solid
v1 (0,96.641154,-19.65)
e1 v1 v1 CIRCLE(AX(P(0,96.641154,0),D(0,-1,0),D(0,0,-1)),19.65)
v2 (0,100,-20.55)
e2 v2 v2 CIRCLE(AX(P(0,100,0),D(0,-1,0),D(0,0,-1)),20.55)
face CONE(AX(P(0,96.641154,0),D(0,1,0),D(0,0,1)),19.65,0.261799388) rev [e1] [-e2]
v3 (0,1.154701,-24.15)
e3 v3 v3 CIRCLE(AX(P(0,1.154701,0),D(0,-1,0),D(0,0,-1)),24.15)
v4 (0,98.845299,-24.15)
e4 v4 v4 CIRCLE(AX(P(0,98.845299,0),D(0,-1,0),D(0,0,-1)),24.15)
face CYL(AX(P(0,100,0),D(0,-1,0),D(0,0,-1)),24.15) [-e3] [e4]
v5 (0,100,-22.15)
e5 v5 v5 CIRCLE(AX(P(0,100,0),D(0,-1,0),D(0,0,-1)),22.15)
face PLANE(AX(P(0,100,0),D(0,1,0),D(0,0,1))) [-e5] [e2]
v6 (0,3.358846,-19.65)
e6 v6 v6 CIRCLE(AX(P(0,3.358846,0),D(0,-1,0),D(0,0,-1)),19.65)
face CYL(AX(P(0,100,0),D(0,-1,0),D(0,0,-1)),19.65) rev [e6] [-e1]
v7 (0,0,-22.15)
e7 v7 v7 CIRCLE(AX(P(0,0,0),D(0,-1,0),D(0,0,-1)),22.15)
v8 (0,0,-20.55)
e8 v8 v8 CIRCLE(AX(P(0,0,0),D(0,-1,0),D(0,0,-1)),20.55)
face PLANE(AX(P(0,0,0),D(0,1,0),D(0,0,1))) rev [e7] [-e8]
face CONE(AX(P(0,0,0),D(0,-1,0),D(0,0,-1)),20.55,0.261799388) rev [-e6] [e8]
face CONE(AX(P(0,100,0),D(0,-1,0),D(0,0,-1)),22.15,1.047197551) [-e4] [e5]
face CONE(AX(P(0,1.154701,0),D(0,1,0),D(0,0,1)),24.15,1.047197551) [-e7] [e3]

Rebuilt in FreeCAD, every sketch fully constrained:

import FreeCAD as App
import Part
import Sketcher
from FreeCAD import Vector
Q = App.Units.Quantity

doc = App.newDocument("Part")
body = doc.addObject("PartDesign::Body", "Body")

sketch1 = body.newObject("Sketcher::SketchObject", "Sketch")
sketch1.AttachmentSupport = (doc.getObject("XZ_Plane"), [""])
sketch1.MapMode = "FlatFace"
sketch1.addGeometry(Part.Circle(Vector(0, 0, 0), Vector(0, 0, 1), 24), False)
sketch1.addGeometry(Part.Circle(Vector(0, 0, 0), Vector(0, 0, 1), 20), False)
sketch1.addConstraint(Sketcher.Constraint("Coincident", 0, 3, -1, 1))
sketch1.addConstraint(Sketcher.Constraint("Coincident", 1, 3, -1, 1))
sketch1.addConstraint(Sketcher.Constraint("Diameter", 0, Q("48.3 mm")))
sketch1.addConstraint(Sketcher.Constraint("Diameter", 1, Q("39.3 mm")))
pad1 = body.newObject("PartDesign::Pad", "Pad")
pad1.Profile = sketch1
pad1.Length = 100
pad1.Reversed = True

sketch2 = body.newObject("Sketcher::SketchObject", "Sketch001")
sketch2.AttachmentSupport = (doc.getObject("XY_Plane"), [""])
sketch2.MapMode = "FlatFace"
sketch2.addGeometry(Part.LineSegment(Vector(24.1, 98.8, 0), Vector(24.1, 100, 0)), False)
sketch2.addGeometry(Part.LineSegment(Vector(24.1, 100, 0), Vector(22.1, 100, 0)), False)
sketch2.addGeometry(Part.LineSegment(Vector(22.1, 100, 0), Vector(24.1, 98.8, 0)), False)
sketch2.addGeometry(Part.LineSegment(Vector(20.6, 100, 0), Vector(19.6, 100, 0)), False)
sketch2.addGeometry(Part.LineSegment(Vector(19.6, 100, 0), Vector(19.6, 96.6, 0)), False)
sketch2.addGeometry(Part.LineSegment(Vector(19.6, 96.6, 0), Vector(20.6, 100, 0)), False)
sketch2.addConstraint(Sketcher.Constraint("Coincident", 0, 2, 1, 1))
sketch2.addConstraint(Sketcher.Constraint("Coincident", 1, 2, 2, 1))
sketch2.addConstraint(Sketcher.Constraint("Coincident", 2, 2, 0, 1))
sketch2.addConstraint(Sketcher.Constraint("Coincident", 3, 2, 4, 1))
sketch2.addConstraint(Sketcher.Constraint("Coincident", 4, 2, 5, 1))
sketch2.addConstraint(Sketcher.Constraint("Coincident", 5, 2, 3, 1))
sketch2.addConstraint(Sketcher.Constraint("Vertical", 0))
sketch2.addConstraint(Sketcher.Constraint("Horizontal", 1))
sketch2.addConstraint(Sketcher.Constraint("Horizontal", 3))
sketch2.addConstraint(Sketcher.Constraint("Vertical", 4))
sketch2.addConstraint(Sketcher.Constraint("Horizontal", 1, 2, 3, 2))
sketch2.addConstraint(Sketcher.Constraint("DistanceX", 1, 2, 1, 1, Q("2 mm")))
sketch2.addConstraint(Sketcher.Constraint("Angle", 2, Q("-30 deg")))
sketch2.addConstraint(Sketcher.Constraint("Angle", 5, Q("75 deg")))
sketch2.addConstraint(Sketcher.Constraint("DistanceX", 3, 2, 3, 1, Q("0.9 mm")))
sketch2.addConstraint(Sketcher.Constraint("DistanceY", -1, 1, 0, 2, Q("100 mm")))
sketch2.addConstraint(Sketcher.Constraint("DistanceX", 3, 2, 1, 2, Q("2.5 mm")))
sketch2.addConstraint(Sketcher.Constraint("DistanceX", -1, 1, 0, 2, Q("24.15 mm")))
groove = body.newObject("PartDesign::Groove", "Groove")
groove.Profile = sketch2
groove.ReferenceAxis = (sketch2, ["V_Axis"])
groove.Angle = 360

sketch3 = body.newObject("Sketcher::SketchObject", "Sketch002")
sketch3.AttachmentSupport = (doc.getObject("XY_Plane"), [""])
sketch3.MapMode = "FlatFace"
sketch3.addGeometry(Part.LineSegment(Vector(24.1, 0, 0), Vector(24.1, 1.2, 0)), False)
sketch3.addGeometry(Part.LineSegment(Vector(24.1, 1.2, 0), Vector(22.1, 0, 0)), False)
sketch3.addGeometry(Part.LineSegment(Vector(22.1, 0, 0), Vector(24.1, 0, 0)), False)
sketch3.addGeometry(Part.LineSegment(Vector(19.6, 0, 0), Vector(20.6, 0, 0)), False)
sketch3.addGeometry(Part.LineSegment(Vector(20.6, 0, 0), Vector(19.6, 3.4, 0)), False)
sketch3.addGeometry(Part.LineSegment(Vector(19.6, 3.4, 0), Vector(19.6, 0, 0)), False)
sketch3.addConstraint(Sketcher.Constraint("Coincident", 0, 2, 1, 1))
sketch3.addConstraint(Sketcher.Constraint("Coincident", 1, 2, 2, 1))
sketch3.addConstraint(Sketcher.Constraint("Coincident", 2, 2, 0, 1))
sketch3.addConstraint(Sketcher.Constraint("Coincident", 3, 2, 4, 1))
sketch3.addConstraint(Sketcher.Constraint("Coincident", 4, 2, 5, 1))
sketch3.addConstraint(Sketcher.Constraint("Coincident", 5, 2, 3, 1))
sketch3.addConstraint(Sketcher.Constraint("Vertical", 0))
sketch3.addConstraint(Sketcher.Constraint("Horizontal", 2))
sketch3.addConstraint(Sketcher.Constraint("Horizontal", 3))
sketch3.addConstraint(Sketcher.Constraint("Vertical", 5))
sketch3.addConstraint(Sketcher.Constraint("PointOnObject", 1, 2, -1))
sketch3.addConstraint(Sketcher.Constraint("PointOnObject", 3, 2, -1))
sketch3.addConstraint(Sketcher.Constraint("DistanceX", 2, 1, 2, 2, Q("2 mm")))
sketch3.addConstraint(Sketcher.Constraint("Angle", 1, Q("-150 deg")))
sketch3.addConstraint(Sketcher.Constraint("Angle", 4, Q("105 deg")))
sketch3.addConstraint(Sketcher.Constraint("DistanceX", 3, 1, 3, 2, Q("0.9 mm")))
sketch3.addConstraint(Sketcher.Constraint("DistanceX", 3, 2, 1, 2, Q("1.6 mm")))
sketch3.addConstraint(Sketcher.Constraint("DistanceX", -1, 1, 0, 2, Q("24.15 mm")))
groove2 = body.newObject("PartDesign::Groove", "Groove001")
groove2.Profile = sketch3
groove2.ReferenceAxis = (sketch3, ["V_Axis"])
groove2.Angle = 360

doc.recompute()
